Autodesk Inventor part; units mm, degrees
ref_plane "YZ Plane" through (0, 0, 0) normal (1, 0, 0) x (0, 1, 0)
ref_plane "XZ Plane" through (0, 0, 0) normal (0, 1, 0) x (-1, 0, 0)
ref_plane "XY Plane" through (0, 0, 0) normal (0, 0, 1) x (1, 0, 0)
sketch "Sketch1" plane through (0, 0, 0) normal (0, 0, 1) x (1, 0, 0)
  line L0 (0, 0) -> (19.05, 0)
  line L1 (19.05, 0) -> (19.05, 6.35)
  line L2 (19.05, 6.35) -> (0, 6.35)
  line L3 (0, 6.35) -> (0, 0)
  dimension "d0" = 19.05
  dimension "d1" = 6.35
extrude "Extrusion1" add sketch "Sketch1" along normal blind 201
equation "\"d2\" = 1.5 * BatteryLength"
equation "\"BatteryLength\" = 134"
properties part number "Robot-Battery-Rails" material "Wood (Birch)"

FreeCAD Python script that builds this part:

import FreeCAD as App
import Part
import Sketcher
from FreeCAD import Vector
Q = App.Units.Quantity


def add_polygon(sketch, points):
    """Adds a closed chain of lines whose ends are joined by coincident constraints."""
    first, n = sketch.GeometryCount, len(points)
    for a, b in zip(points, points[1:] + points[:1]):
        sketch.addGeometry(Part.LineSegment(App.Vector(*a, 0), App.Vector(*b, 0)), False)
    for i in range(n):
        sketch.addConstraint(Sketcher.Constraint("Coincident", first + i, 2, first + (i + 1) % n, 1))

doc = App.newDocument("Part")
params = doc.addObject("Spreadsheet::Sheet", "Params")
for row, (alias, value) in enumerate([
    ("sketch1_width", "0.75 in"),
    ("sketch1_height", "0.25 in"),
    ("pad1_length", "201 mm"),
], start=1):
    params.set(f"A{row}", alias)
    params.set(f"B{row}", "=" + value)
    params.setAlias(f"B{row}", alias)

body = doc.addObject("PartDesign::Body", "Body")

sketch1 = body.newObject("Sketcher::SketchObject", "Sketch")
sketch1.AttachmentSupport = (doc.getObject("XY_Plane"), [""])
sketch1.MapMode = "FlatFace"
add_polygon(sketch1, [(0, 6.35), (0, 0), (19.05, 0), (19.05, 6.35)])
sketch1.addConstraint([
    Sketcher.Constraint("Vertical", 0),
    Sketcher.Constraint("Horizontal", 1),
    Sketcher.Constraint("Vertical", 2),
    Sketcher.Constraint("Horizontal", 3),
    Sketcher.Constraint("Coincident", 0, 2, -1, 1),
    Sketcher.Constraint("DistanceX", 1, 1, 1, 2, Q("0.75 in")),
    Sketcher.Constraint("DistanceY", 0, 2, 0, 1, Q("0.25 in")),
])
sketch1.setExpression("Constraints[9]", "Params.sketch1_width")
sketch1.setExpression("Constraints[10]", "Params.sketch1_height")
pad1 = body.newObject("PartDesign::Pad", "Pad")
pad1.Profile = sketch1
pad1.setExpression("Length", "Params.pad1_length")

doc.recompute()
